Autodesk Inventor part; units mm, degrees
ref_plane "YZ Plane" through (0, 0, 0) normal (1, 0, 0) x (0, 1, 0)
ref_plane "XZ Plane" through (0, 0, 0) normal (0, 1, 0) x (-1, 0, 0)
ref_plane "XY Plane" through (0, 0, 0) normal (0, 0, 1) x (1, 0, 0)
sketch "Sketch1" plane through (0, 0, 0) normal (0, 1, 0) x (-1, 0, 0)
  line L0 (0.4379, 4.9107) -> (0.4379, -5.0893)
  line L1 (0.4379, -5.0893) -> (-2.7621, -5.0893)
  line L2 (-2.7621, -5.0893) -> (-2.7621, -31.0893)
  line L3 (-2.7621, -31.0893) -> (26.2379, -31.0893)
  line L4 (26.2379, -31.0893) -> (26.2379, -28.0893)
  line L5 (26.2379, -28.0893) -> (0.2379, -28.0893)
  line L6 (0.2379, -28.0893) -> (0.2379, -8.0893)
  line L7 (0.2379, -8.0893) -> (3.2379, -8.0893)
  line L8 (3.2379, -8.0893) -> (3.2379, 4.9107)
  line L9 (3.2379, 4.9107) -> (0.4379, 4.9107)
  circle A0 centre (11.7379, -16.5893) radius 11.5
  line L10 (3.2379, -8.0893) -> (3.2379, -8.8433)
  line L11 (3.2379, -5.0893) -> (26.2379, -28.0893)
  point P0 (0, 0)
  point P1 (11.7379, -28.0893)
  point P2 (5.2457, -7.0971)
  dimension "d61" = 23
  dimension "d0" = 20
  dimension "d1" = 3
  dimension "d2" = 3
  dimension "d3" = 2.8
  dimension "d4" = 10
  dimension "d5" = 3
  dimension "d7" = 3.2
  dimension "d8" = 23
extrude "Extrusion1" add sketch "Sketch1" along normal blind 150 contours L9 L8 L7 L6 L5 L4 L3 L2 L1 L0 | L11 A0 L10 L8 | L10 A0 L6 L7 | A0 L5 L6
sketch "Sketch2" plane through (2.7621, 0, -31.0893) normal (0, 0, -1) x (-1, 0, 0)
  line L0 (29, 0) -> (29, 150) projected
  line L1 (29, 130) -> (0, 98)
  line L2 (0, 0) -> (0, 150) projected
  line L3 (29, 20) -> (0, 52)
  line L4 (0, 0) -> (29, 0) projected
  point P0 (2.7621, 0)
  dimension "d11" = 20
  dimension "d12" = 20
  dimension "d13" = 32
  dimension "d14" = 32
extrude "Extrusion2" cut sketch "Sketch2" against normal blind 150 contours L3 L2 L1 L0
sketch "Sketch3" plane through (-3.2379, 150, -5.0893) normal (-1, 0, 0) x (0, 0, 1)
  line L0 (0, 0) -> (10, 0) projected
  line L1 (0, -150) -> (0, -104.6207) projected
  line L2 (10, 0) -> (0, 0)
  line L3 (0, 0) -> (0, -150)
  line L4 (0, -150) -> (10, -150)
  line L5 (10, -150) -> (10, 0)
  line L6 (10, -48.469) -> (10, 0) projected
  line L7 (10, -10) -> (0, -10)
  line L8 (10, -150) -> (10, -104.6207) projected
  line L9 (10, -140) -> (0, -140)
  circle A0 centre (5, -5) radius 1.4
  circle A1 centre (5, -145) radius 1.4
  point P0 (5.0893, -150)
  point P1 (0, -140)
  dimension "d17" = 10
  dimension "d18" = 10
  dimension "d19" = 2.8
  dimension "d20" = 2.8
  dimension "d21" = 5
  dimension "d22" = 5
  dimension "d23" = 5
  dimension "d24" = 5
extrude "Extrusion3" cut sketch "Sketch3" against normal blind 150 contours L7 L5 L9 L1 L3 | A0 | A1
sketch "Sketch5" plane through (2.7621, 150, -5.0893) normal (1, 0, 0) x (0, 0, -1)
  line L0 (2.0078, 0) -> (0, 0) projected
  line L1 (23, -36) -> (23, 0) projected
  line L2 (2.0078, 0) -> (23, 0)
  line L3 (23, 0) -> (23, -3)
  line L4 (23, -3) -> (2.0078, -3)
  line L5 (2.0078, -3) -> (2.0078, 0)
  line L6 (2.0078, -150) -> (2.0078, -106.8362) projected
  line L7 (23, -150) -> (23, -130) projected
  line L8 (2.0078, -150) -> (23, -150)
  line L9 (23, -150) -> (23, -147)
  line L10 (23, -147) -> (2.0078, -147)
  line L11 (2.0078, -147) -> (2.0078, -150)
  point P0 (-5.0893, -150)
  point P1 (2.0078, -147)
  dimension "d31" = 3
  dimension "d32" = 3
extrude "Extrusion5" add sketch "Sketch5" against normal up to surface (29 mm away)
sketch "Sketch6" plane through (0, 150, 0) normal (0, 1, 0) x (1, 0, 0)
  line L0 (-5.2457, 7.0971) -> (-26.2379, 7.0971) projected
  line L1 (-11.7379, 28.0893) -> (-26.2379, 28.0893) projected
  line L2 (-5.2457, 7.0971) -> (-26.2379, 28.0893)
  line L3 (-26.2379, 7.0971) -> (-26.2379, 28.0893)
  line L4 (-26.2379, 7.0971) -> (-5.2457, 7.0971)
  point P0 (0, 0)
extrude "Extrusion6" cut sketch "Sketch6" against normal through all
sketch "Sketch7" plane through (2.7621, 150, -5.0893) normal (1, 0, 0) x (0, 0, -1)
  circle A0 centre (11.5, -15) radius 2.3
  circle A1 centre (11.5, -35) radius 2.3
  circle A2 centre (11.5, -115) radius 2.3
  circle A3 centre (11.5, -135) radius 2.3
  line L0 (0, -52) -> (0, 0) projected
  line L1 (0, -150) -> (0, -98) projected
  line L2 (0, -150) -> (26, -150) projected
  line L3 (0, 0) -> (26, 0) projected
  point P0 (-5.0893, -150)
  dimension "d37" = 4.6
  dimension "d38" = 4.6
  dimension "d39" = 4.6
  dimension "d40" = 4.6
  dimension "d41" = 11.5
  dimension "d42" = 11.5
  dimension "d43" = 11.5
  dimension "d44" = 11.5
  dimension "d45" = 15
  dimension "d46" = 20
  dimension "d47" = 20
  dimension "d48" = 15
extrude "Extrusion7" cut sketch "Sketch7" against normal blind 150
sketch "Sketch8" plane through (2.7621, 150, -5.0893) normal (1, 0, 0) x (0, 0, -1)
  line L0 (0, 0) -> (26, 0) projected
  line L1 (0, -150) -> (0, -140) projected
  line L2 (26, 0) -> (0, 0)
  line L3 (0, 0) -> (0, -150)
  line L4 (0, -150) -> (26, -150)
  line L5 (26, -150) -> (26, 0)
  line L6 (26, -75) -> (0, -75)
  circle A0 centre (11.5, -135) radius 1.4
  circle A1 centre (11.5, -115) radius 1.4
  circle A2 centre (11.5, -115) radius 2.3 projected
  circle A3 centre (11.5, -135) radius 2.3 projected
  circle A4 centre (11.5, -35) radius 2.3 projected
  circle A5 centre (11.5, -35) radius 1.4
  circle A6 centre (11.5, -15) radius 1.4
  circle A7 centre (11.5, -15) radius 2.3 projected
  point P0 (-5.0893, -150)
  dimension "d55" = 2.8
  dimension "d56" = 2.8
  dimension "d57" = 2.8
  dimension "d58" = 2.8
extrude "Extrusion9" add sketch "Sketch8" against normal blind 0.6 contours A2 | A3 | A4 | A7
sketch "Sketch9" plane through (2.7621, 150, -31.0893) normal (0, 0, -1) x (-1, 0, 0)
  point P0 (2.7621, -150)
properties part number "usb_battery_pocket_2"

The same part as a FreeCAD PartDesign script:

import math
import FreeCAD as App
import Part
import Sketcher

V = App.Vector
Q = App.Units.Quantity

doc = App.newDocument("Part")
body = doc.addObject("PartDesign::Body", "Body")
body.AllowCompound = True

# Sketch on XZ plane
sketch1 = body.newObject("Sketcher::SketchObject", "Sketch")
sketch1.AttachmentSupport = (doc.getObject("XZ_Plane"), [""])
sketch1.MapMode = "FlatFace"
sketch1.addGeometry(Part.LineSegment(V(-3.2, 4.9, 0), V(-0.4, 4.9, 0)), False)
sketch1.addGeometry(Part.LineSegment(V(-0.4, 4.9, 0), V(-0.4, -5.1, 0)), False)
sketch1.addGeometry(Part.LineSegment(V(-0.4, -5.1, 0), V(2.8, -5.1, 0)), False)
sketch1.addGeometry(Part.LineSegment(V(2.8, -5.1, 0), V(2.8, -31.1, 0)), False)
sketch1.addGeometry(Part.LineSegment(V(2.8, -31.1, 0), V(-26.2, -31.1, 0)), False)
sketch1.addGeometry(Part.LineSegment(V(-26.2, -31.1, 0), V(-26.2, -28.1, 0)), False)
sketch1.addGeometry(Part.LineSegment(V(-26.2, -28.1, 0), V(-11.7, -28.1, 0)), False)
sketch1.addGeometry(Part.ArcOfCircle(Part.Circle(V(-11.7, -16.6, 0), V(0, 0, 1), 11.5), math.radians(-90), math.radians(56)), False)
sketch1.addGeometry(Part.LineSegment(V(-5.2, -7.1, 0), V(-3.2, -5.1, 0)), False)
sketch1.addGeometry(Part.LineSegment(V(-3.2, -5.1, 0), V(-3.2, 4.9, 0)), False)
sketch1.addConstraint(Sketcher.Constraint("Coincident", 0, 2, 1, 1))
sketch1.addConstraint(Sketcher.Constraint("Coincident", 1, 2, 2, 1))
sketch1.addConstraint(Sketcher.Constraint("Coincident", 2, 2, 3, 1))
sketch1.addConstraint(Sketcher.Constraint("Coincident", 3, 2, 4, 1))
sketch1.addConstraint(Sketcher.Constraint("Coincident", 4, 2, 5, 1))
sketch1.addConstraint(Sketcher.Constraint("Coincident", 5, 2, 6, 1))
sketch1.addConstraint(Sketcher.Constraint("Tangent", 6, 2, 7, 1))
sketch1.addConstraint(Sketcher.Constraint("Coincident", 7, 2, 8, 1))
sketch1.addConstraint(Sketcher.Constraint("Coincident", 8, 2, 9, 1))
sketch1.addConstraint(Sketcher.Constraint("Coincident", 9, 2, 0, 1))
sketch1.addConstraint(Sketcher.Constraint("Horizontal", 0))
sketch1.addConstraint(Sketcher.Constraint("Vertical", 1))
sketch1.addConstraint(Sketcher.Constraint("Horizontal", 2))
sketch1.addConstraint(Sketcher.Constraint("Vertical", 3))
sketch1.addConstraint(Sketcher.Constraint("Horizontal", 4))
sketch1.addConstraint(Sketcher.Constraint("Vertical", 5))
sketch1.addConstraint(Sketcher.Constraint("Horizontal", 6))
sketch1.addConstraint(Sketcher.Constraint("Vertical", 9))
sketch1.addConstraint(Sketcher.Constraint("Horizontal", 2, 2, 8, 2))
sketch1.addConstraint(Sketcher.Constraint("Radius", 7, Q("11.5 mm")))
sketch1.addConstraint(Sketcher.Constraint("DistanceY", 1, 2, 1, 1, Q("10 mm")))
sketch1.addConstraint(Sketcher.Constraint("DistanceY", 5, 1, 5, 2, Q("3 mm")))
sketch1.addConstraint(Sketcher.Constraint("DistanceX", 0, 1, 0, 2, Q("2.8 mm")))
sketch1.addConstraint(Sketcher.Constraint("DistanceX", 2, 1, 2, 2, Q("3.2 mm")))
sketch1.addConstraint(Sketcher.Constraint("DistanceY", 5, 2, 1, 2, Q("23 mm")))
sketch1.addConstraint(Sketcher.Constraint("DistanceX", 4, 2, 4, 1, Q("29 mm")))
sketch1.addConstraint(Sketcher.Constraint("Angle", 8, Q("45 deg")))
sketch1.addConstraint(Sketcher.Constraint("DistanceX", 6, 1, 6, 2, Q("14.5 mm")))
sketch1.addConstraint(Sketcher.Constraint("DistanceX", 7, 3, -1, 1, Q("11.738 mm")))
sketch1.addConstraint(Sketcher.Constraint("DistanceY", 7, 2, -1, 1, Q("7.097 mm")))
pad1 = body.newObject("PartDesign::Pad", "Pad")
pad1.Profile = sketch1
pad1.Length = 150
pad1.Reversed = True

# Sketch on XY plane
sketch2 = body.newObject("Sketcher::SketchObject", "Sketch001")
sketch2.AttachmentSupport = (doc.getObject("XY_Plane"), [""])
sketch2.MapMode = "FlatFace"
sketch2.AttachmentOffset = App.Placement(V(0, 0, -31.0893), App.Rotation())
sketch2.addGeometry(Part.LineSegment(V(3, 52, 0), V(-26, 20, 0)), False)
sketch2.addGeometry(Part.LineSegment(V(-26, 20, 0), V(-26, 130, 0)), False)
sketch2.addGeometry(Part.LineSegment(V(-26, 130, 0), V(3, 98, 0)), False)
sketch2.addGeometry(Part.LineSegment(V(3, 98, 0), V(3, 52, 0)), False)
sketch2.addConstraint(Sketcher.Constraint("Coincident", 0, 2, 1, 1))
sketch2.addConstraint(Sketcher.Constraint("Coincident", 1, 2, 2, 1))
sketch2.addConstraint(Sketcher.Constraint("Coincident", 2, 2, 3, 1))
sketch2.addConstraint(Sketcher.Constraint("Coincident", 3, 2, 0, 1))
sketch2.addConstraint(Sketcher.Constraint("Vertical", 1))
sketch2.addConstraint(Sketcher.Constraint("Vertical", 3))
sketch2.addConstraint(Sketcher.Constraint("Equal", 0, 2))
sketch2.addConstraint(Sketcher.Constraint("DistanceY", -1, 1, 0, 2, Q("20 mm")))
sketch2.addConstraint(Sketcher.Constraint("DistanceY", 2, 2, 1, 2, Q("32 mm")))
sketch2.addConstraint(Sketcher.Constraint("DistanceY", 1, 1, 1, 2, Q("110 mm")))
sketch2.addConstraint(Sketcher.Constraint("DistanceX", 1, 2, 2, 2, Q("29 mm")))
sketch2.addConstraint(Sketcher.Constraint("DistanceX", 0, 2, -1, 1, Q("26.238 mm")))
pocket1 = body.newObject("PartDesign::Pocket", "Pocket")
pocket1.Profile = sketch2
pocket1.Length = 150
pocket1.Reversed = True

# Sketch on YZ plane
sketch3 = body.newObject("Sketcher::SketchObject", "Sketch002")
sketch3.AttachmentSupport = (doc.getObject("YZ_Plane"), [""])
sketch3.MapMode = "FlatFace"
sketch3.AttachmentOffset = App.Placement(V(0, 0, -3.2379), App.Rotation())
sketch3.addGeometry(Part.LineSegment(V(140, 4.9, 0), V(140, -5.1, 0)), False)
sketch3.addGeometry(Part.LineSegment(V(140, -5.1, 0), V(10, -5.1, 0)), False)
sketch3.addGeometry(Part.LineSegment(V(10, -5.1, 0), V(10, 4.9, 0)), False)
sketch3.addGeometry(Part.LineSegment(V(10, 4.9, 0), V(140, 4.9, 0)), False)
sketch3.addGeometry(Part.Circle(V(145, -0.1, 0), V(0, 0, 1), 1.4), False)
sketch3.addGeometry(Part.Circle(V(5, -0.1, 0), V(0, 0, 1), 1.4), False)
sketch3.addConstraint(Sketcher.Constraint("Coincident", 0, 2, 1, 1))
sketch3.addConstraint(Sketcher.Constraint("Coincident", 1, 2, 2, 1))
sketch3.addConstraint(Sketcher.Constraint("Coincident", 2, 2, 3, 1))
sketch3.addConstraint(Sketcher.Constraint("Coincident", 3, 2, 0, 1))
sketch3.addConstraint(Sketcher.Constraint("Vertical", 0))
sketch3.addConstraint(Sketcher.Constraint("Horizontal", 1))
sketch3.addConstraint(Sketcher.Constraint("Vertical", 2))
sketch3.addConstraint(Sketcher.Constraint("Horizontal", 3))
sketch3.addConstraint(Sketcher.Constraint("Equal", 4, 5))
sketch3.addConstraint(Sketcher.Constraint("Horizontal", 4, 3, 5, 3))
sketch3.addConstraint(Sketcher.Constraint("Diameter", 4, Q("2.8 mm")))
sketch3.addConstraint(Sketcher.Constraint("DistanceY", 0, 2, 0, 1, Q("10 mm")))
sketch3.addConstraint(Sketcher.Constraint("DistanceX", -1, 1, 5, 3, Q("5 mm")))
sketch3.addConstraint(Sketcher.Constraint("DistanceX", -1, 1, 1, 2, Q("10 mm")))
sketch3.addConstraint(Sketcher.Constraint("DistanceX", 0, 2, 4, 3, Q("5 mm")))
sketch3.addConstraint(Sketcher.Constraint("DistanceY", 0, 2, 4, 3, Q("5 mm")))
sketch3.addConstraint(Sketcher.Constraint("DistanceX", 1, 2, 1, 1, Q("130 mm")))
sketch3.addConstraint(Sketcher.Constraint("DistanceY", 4, 3, -1, 1, Q("0.0893 mm")))
pocket2 = body.newObject("PartDesign::Pocket", "Pocket001")
pocket2.Profile = sketch3
pocket2.Length = 150
pocket2.Reversed = True

# Sketch on YZ plane
sketch4 = body.newObject("Sketcher::SketchObject", "Sketch003")
sketch4.AttachmentSupport = (doc.getObject("YZ_Plane"), [""])
sketch4.MapMode = "FlatFace"
sketch4.AttachmentOffset = App.Placement(V(0, 0, 2.7621), App.Rotation())
sketch4.addGeometry(Part.LineSegment(V(147, -7.1, 0), V(147, -28.1, 0)), False)
sketch4.addGeometry(Part.LineSegment(V(147, -28.1, 0), V(150, -28.1, 0)), False)
sketch4.addGeometry(Part.LineSegment(V(150, -28.1, 0), V(150, -7.1, 0)), False)
sketch4.addGeometry(Part.LineSegment(V(150, -7.1, 0), V(147, -7.1, 0)), False)
sketch4.addGeometry(Part.LineSegment(V(3, -7.1, 0), V(0, -7.1, 0)), False)
sketch4.addGeometry(Part.LineSegment(V(0, -7.1, 0), V(0, -28.1, 0)), False)
sketch4.addGeometry(Part.LineSegment(V(0, -28.1, 0), V(3, -28.1, 0)), False)
sketch4.addGeometry(Part.LineSegment(V(3, -28.1, 0), V(3, -7.1, 0)), False)
sketch4.addConstraint(Sketcher.Constraint("Coincident", 0, 2, 1, 1))
sketch4.addConstraint(Sketcher.Constraint("Coincident", 1, 2, 2, 1))
sketch4.addConstraint(Sketcher.Constraint("Coincident", 2, 2, 3, 1))
sketch4.addConstraint(Sketcher.Constraint("Coincident", 3, 2, 0, 1))
sketch4.addConstraint(Sketcher.Constraint("Coincident", 4, 2, 5, 1))
sketch4.addConstraint(Sketcher.Constraint("Coincident", 5, 2, 6, 1))
sketch4.addConstraint(Sketcher.Constraint("Coincident", 6, 2, 7, 1))
sketch4.addConstraint(Sketcher.Constraint("Coincident", 7, 2, 4, 1))
sketch4.addConstraint(Sketcher.Constraint("Vertical", 0))
sketch4.addConstraint(Sketcher.Constraint("Horizontal", 1))
sketch4.addConstraint(Sketcher.Constraint("Vertical", 2))
sketch4.addConstraint(Sketcher.Constraint("Horizontal", 3))
sketch4.addConstraint(Sketcher.Constraint("Horizontal", 4))
sketch4.addConstraint(Sketcher.Constraint("Vertical", 5))
sketch4.addConstraint(Sketcher.Constraint("Horizontal", 6))
sketch4.addConstraint(Sketcher.Constraint("Vertical", 7))
sketch4.addConstraint(Sketcher.Constraint("PointOnObject", 4, 2, -2))
sketch4.addConstraint(Sketcher.Constraint("Horizontal", 3, 2, 4, 2))
sketch4.addConstraint(Sketcher.Constraint("Horizontal", 1, 2, 5, 2))
sketch4.addConstraint(Sketcher.Constraint("Equal", 3, 4))
sketch4.addConstraint(Sketcher.Constraint("DistanceX", 1, 1, 1, 2, Q("3 mm")))
sketch4.addConstraint(Sketcher.Constraint("DistanceX", -1, 1, 0, 2, Q("147 mm")))
sketch4.addConstraint(Sketcher.Constraint("DistanceY", 0, 2, 0, 1, Q("20.9922 mm")))
sketch4.addConstraint(Sketcher.Constraint("DistanceY", 2, 2, -1, 1, Q("7.097 mm")))
pad2 = body.newObject("PartDesign::Pad", "Pad001")
pad2.Profile = sketch4
pad2.Length = 29
pad2.Reversed = True

# Sketch on XZ plane
sketch5 = body.newObject("Sketcher::SketchObject", "Sketch004")
sketch5.AttachmentSupport = (doc.getObject("XZ_Plane"), [""])
sketch5.MapMode = "FlatFace"
sketch5.AttachmentOffset = App.Placement(V(0, 0, -150), App.Rotation())
sketch5.addGeometry(Part.LineSegment(V(-26, -7, 0), V(-5, -7, 0)), False)
sketch5.addGeometry(Part.LineSegment(V(-5, -7, 0), V(-26, -28, 0)), False)
sketch5.addGeometry(Part.LineSegment(V(-26, -28, 0), V(-26, -7, 0)), False)
sketch5.addConstraint(Sketcher.Constraint("Coincident", 0, 2, 1, 1))
sketch5.addConstraint(Sketcher.Constraint("Coincident", 1, 2, 2, 1))
sketch5.addConstraint(Sketcher.Constraint("Coincident", 2, 2, 0, 1))
sketch5.addConstraint(Sketcher.Constraint("Horizontal", 0))
sketch5.addConstraint(Sketcher.Constraint("Vertical", 2))
sketch5.addConstraint(Sketcher.Constraint("Equal", 0, 2))
sketch5.addConstraint(Sketcher.Constraint("DistanceX", 0, 1, 0, 2, Q("20.9922 mm")))
sketch5.addConstraint(Sketcher.Constraint("DistanceY", 0, 2, -1, 1, Q("7.097 mm")))
sketch5.addConstraint(Sketcher.Constraint("DistanceX", 1, 2, -1, 1, Q("26.238 mm")))
pocket3 = body.newObject("PartDesign::Pocket", "Pocket002")
pocket3.Profile = sketch5
pocket3.Type = "ThroughAll"
pocket3.Reversed = True

# Sketch on YZ plane
sketch6 = body.newObject("Sketcher::SketchObject", "Sketch005")
sketch6.AttachmentSupport = (doc.getObject("YZ_Plane"), [""])
sketch6.MapMode = "FlatFace"
sketch6.AttachmentOffset = App.Placement(V(0, 0, 2.7621), App.Rotation())
sketch6.addGeometry(Part.Circle(V(135, -16.6, 0), V(0, 0, 1), 2.3), False)
sketch6.addGeometry(Part.Circle(V(115, -16.6, 0), V(0, 0, 1), 2.3), False)
sketch6.addGeometry(Part.Circle(V(35, -16.6, 0), V(0, 0, 1), 2.3), False)
sketch6.addGeometry(Part.Circle(V(15, -16.6, 0), V(0, 0, 1), 2.3), False)
sketch6.addConstraint(Sketcher.Constraint("Equal", 0, 1))
sketch6.addConstraint(Sketcher.Constraint("Equal", 1, 2))
sketch6.addConstraint(Sketcher.Constraint("Equal", 2, 3))
sketch6.addConstraint(Sketcher.Constraint("Horizontal", 0, 3, 1, 3))
sketch6.addConstraint(Sketcher.Constraint("Horizontal", 1, 3, 2, 3))
sketch6.addConstraint(Sketcher.Constraint("Horizontal", 2, 3, 3, 3))
sketch6.addConstraint(Sketcher.Constraint("Diameter", 0, Q("4.6 mm")))
sketch6.addConstraint(Sketcher.Constraint("DistanceX", -1, 1, 3, 3, Q("15 mm")))
sketch6.addConstraint(Sketcher.Constraint("DistanceX", 1, 3, 0, 3, Q("20 mm")))
sketch6.addConstraint(Sketcher.Constraint("DistanceX", 3, 3, 2, 3, Q("20 mm")))
sketch6.addConstraint(Sketcher.Constraint("DistanceX", -1, 1, 0, 3, Q("135 mm")))
sketch6.addConstraint(Sketcher.Constraint("DistanceY", 0, 3, -1, 1, Q("16.5893 mm")))
pocket4 = body.newObject("PartDesign::Pocket", "Pocket003")
pocket4.Profile = sketch6
pocket4.Length = 150

# Sketch on YZ plane
sketch7 = body.newObject("Sketcher::SketchObject", "Sketch006")
sketch7.AttachmentSupport = (doc.getObject("YZ_Plane"), [""])
sketch7.MapMode = "FlatFace"
sketch7.AttachmentOffset = App.Placement(V(0, 0, 2.7621), App.Rotation())
sketch7.addGeometry(Part.Circle(V(35, -16.6, 0), V(0, 0, 1), 2.3), False)
sketch7.addGeometry(Part.Circle(V(35, -16.6, 0), V(0, 0, 1), 1.4), False)
sketch7.addGeometry(Part.Circle(V(15, -16.6, 0), V(0, 0, 1), 2.3), False)
sketch7.addGeometry(Part.Circle(V(15, -16.6, 0), V(0, 0, 1), 1.4), False)
sketch7.addGeometry(Part.Circle(V(115, -16.6, 0), V(0, 0, 1), 2.3), False)
sketch7.addGeometry(Part.Circle(V(115, -16.6, 0), V(0, 0, 1), 1.4), False)
sketch7.addGeometry(Part.Circle(V(135, -16.6, 0), V(0, 0, 1), 2.3), False)
sketch7.addGeometry(Part.Circle(V(135, -16.6, 0), V(0, 0, 1), 1.4), False)
sketch7.addConstraint(Sketcher.Constraint("Coincident", 1, 3, 0, 3))
sketch7.addConstraint(Sketcher.Constraint("Coincident", 3, 3, 2, 3))
sketch7.addConstraint(Sketcher.Constraint("Coincident", 5, 3, 4, 3))
sketch7.addConstraint(Sketcher.Constraint("Coincident", 7, 3, 6, 3))
sketch7.addConstraint(Sketcher.Constraint("Equal", 0, 2))
sketch7.addConstraint(Sketcher.Constraint("Equal", 1, 3))
sketch7.addConstraint(Sketcher.Constraint("Equal", 2, 4))
sketch7.addConstraint(Sketcher.Constraint("Equal", 3, 5))
sketch7.addConstraint(Sketcher.Constraint("Equal", 4, 6))
sketch7.addConstraint(Sketcher.Constraint("Equal", 5, 7))
sketch7.addConstraint(Sketcher.Constraint("Horizontal", 1, 3, 2, 3))
sketch7.addConstraint(Sketcher.Constraint("Horizontal", 3, 3, 4, 3))
sketch7.addConstraint(Sketcher.Constraint("Horizontal", 5, 3, 6, 3))
sketch7.addConstraint(Sketcher.Constraint("Diameter", 1, Q("2.8 mm")))
sketch7.addConstraint(Sketcher.Constraint("Diameter", 0, Q("4.6 mm")))
sketch7.addConstraint(Sketcher.Constraint("DistanceX", -1, 1, 0, 3, Q("35 mm")))
sketch7.addConstraint(Sketcher.Constraint("DistanceX", -1, 1, 2, 3, Q("15 mm")))
sketch7.addConstraint(Sketcher.Constraint("DistanceX", -1, 1, 4, 3, Q("115 mm")))
sketch7.addConstraint(Sketcher.Constraint("DistanceX", -1, 1, 6, 3, Q("135 mm")))
sketch7.addConstraint(Sketcher.Constraint("DistanceY", 0, 3, -1, 1, Q("16.5893 mm")))
pad3 = body.newObject("PartDesign::Pad", "Pad002")
pad3.Profile = sketch7
pad3.Length = 0.6
pad3.Reversed = True

doc.recompute()
